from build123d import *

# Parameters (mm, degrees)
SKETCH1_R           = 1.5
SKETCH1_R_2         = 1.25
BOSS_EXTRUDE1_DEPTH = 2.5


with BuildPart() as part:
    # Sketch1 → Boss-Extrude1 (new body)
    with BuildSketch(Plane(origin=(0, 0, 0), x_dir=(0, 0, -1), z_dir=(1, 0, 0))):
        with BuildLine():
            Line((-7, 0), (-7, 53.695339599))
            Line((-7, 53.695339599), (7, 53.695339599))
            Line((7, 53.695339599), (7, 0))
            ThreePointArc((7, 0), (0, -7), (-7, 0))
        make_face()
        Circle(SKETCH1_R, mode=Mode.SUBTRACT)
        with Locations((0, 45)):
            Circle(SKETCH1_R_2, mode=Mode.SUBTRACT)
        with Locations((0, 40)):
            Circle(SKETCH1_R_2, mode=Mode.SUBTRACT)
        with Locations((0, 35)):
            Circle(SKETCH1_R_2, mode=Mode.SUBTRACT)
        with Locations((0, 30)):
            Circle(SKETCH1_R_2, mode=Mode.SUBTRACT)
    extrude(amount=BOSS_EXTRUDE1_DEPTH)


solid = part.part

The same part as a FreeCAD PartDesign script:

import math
import FreeCAD as App
import Part
import Sketcher

V = App.Vector
Q = App.Units.Quantity

doc = App.newDocument("Part")
params = doc.addObject("Spreadsheet::Sheet", "Params")
for row, (alias, value) in enumerate([
    ("sketch1_diameter", "3 mm"),
    ("sketch1_radius", "7 mm"),
    ("sketch1_diameter2", "2.5 mm"),
    ("pad1_length", "2.5 mm"),
], start=1):
    params.set(f"A{row}", alias)
    params.set(f"B{row}", "=" + value)
    params.setAlias(f"B{row}", alias)

body = doc.addObject("PartDesign::Body", "Body")

# Sketch on YZ plane
sketch1 = body.newObject("Sketcher::SketchObject", "Sketch")
sketch1.AttachmentSupport = (doc.getObject("YZ_Plane"), [""])
sketch1.MapMode = "FlatFace"
sketch1.addGeometry([
    Part.LineSegment(V(53.7, 7, 0), V(0, 7, 0)),  # 0
    Part.ArcOfCircle(Part.Circle(V(0, 0, 0), V(0, 0, 1), 7), math.radians(90), math.radians(270)),  # 1
    Part.LineSegment(V(0, -7, 0), V(53.7, -7, 0)),  # 2
    Part.LineSegment(V(53.7, -7, 0), V(53.7, 7, 0)),  # 3
    Part.Circle(V(0, 0, 0), V(0, 0, 1), 1.5),  # 4
    Part.Circle(V(30, 0, 0), V(0, 0, 1), 1.2),  # 5
    Part.Circle(V(35, 0, 0), V(0, 0, 1), 1.2),  # 6
    Part.Circle(V(40, 0, 0), V(0, 0, 1), 1.2),  # 7
    Part.Circle(V(45, 0, 0), V(0, 0, 1), 1.2),  # 8
], False)
sketch1.addConstraint([
    Sketcher.Constraint("Tangent", 0, 2, 1, 1),
    Sketcher.Constraint("Tangent", 1, 2, 2, 1),
    Sketcher.Constraint("Coincident", 2, 2, 3, 1),
    Sketcher.Constraint("Coincident", 3, 2, 0, 1),
    Sketcher.Constraint("Horizontal", 0),
    Sketcher.Constraint("Horizontal", 2),
    Sketcher.Constraint("Vertical", 3),
    Sketcher.Constraint("Coincident", 1, 3, -1, 1),
    Sketcher.Constraint("Coincident", 4, 3, -1, 1),
    Sketcher.Constraint("Equal", 5, 6),
    Sketcher.Constraint("Equal", 6, 7),
    Sketcher.Constraint("Equal", 7, 8),
    Sketcher.Constraint("PointOnObject", 5, 3, -1),
    Sketcher.Constraint("PointOnObject", 6, 3, -1),
    Sketcher.Constraint("PointOnObject", 7, 3, -1),
    Sketcher.Constraint("PointOnObject", 8, 3, -1),
    Sketcher.Constraint("Diameter", 4, Q("3 mm")),
    Sketcher.Constraint("Radius", 1, Q("7 mm")),
    Sketcher.Constraint("Diameter", 5, Q("2.5 mm")),
    Sketcher.Constraint("DistanceX", -1, 1, 5, 3, Q("30 mm")),
    Sketcher.Constraint("DistanceX", -1, 1, 6, 3, Q("35 mm")),
    Sketcher.Constraint("DistanceX", -1, 1, 7, 3, Q("40 mm")),
    Sketcher.Constraint("DistanceX", -1, 1, 8, 3, Q("45 mm")),
    Sketcher.Constraint("DistanceX", 0, 2, 0, 1, Q("53.69534 mm")),
])
sketch1.setExpression("Constraints[16]", "Params.sketch1_diameter")
sketch1.setExpression("Constraints[17]", "Params.sketch1_radius")
sketch1.setExpression("Constraints[18]", "Params.sketch1_diameter2")
pad1 = body.newObject("PartDesign::Pad", "Pad")
pad1.Profile = sketch1
pad1.setExpression("Length", "Params.pad1_length")

doc.recompute()
